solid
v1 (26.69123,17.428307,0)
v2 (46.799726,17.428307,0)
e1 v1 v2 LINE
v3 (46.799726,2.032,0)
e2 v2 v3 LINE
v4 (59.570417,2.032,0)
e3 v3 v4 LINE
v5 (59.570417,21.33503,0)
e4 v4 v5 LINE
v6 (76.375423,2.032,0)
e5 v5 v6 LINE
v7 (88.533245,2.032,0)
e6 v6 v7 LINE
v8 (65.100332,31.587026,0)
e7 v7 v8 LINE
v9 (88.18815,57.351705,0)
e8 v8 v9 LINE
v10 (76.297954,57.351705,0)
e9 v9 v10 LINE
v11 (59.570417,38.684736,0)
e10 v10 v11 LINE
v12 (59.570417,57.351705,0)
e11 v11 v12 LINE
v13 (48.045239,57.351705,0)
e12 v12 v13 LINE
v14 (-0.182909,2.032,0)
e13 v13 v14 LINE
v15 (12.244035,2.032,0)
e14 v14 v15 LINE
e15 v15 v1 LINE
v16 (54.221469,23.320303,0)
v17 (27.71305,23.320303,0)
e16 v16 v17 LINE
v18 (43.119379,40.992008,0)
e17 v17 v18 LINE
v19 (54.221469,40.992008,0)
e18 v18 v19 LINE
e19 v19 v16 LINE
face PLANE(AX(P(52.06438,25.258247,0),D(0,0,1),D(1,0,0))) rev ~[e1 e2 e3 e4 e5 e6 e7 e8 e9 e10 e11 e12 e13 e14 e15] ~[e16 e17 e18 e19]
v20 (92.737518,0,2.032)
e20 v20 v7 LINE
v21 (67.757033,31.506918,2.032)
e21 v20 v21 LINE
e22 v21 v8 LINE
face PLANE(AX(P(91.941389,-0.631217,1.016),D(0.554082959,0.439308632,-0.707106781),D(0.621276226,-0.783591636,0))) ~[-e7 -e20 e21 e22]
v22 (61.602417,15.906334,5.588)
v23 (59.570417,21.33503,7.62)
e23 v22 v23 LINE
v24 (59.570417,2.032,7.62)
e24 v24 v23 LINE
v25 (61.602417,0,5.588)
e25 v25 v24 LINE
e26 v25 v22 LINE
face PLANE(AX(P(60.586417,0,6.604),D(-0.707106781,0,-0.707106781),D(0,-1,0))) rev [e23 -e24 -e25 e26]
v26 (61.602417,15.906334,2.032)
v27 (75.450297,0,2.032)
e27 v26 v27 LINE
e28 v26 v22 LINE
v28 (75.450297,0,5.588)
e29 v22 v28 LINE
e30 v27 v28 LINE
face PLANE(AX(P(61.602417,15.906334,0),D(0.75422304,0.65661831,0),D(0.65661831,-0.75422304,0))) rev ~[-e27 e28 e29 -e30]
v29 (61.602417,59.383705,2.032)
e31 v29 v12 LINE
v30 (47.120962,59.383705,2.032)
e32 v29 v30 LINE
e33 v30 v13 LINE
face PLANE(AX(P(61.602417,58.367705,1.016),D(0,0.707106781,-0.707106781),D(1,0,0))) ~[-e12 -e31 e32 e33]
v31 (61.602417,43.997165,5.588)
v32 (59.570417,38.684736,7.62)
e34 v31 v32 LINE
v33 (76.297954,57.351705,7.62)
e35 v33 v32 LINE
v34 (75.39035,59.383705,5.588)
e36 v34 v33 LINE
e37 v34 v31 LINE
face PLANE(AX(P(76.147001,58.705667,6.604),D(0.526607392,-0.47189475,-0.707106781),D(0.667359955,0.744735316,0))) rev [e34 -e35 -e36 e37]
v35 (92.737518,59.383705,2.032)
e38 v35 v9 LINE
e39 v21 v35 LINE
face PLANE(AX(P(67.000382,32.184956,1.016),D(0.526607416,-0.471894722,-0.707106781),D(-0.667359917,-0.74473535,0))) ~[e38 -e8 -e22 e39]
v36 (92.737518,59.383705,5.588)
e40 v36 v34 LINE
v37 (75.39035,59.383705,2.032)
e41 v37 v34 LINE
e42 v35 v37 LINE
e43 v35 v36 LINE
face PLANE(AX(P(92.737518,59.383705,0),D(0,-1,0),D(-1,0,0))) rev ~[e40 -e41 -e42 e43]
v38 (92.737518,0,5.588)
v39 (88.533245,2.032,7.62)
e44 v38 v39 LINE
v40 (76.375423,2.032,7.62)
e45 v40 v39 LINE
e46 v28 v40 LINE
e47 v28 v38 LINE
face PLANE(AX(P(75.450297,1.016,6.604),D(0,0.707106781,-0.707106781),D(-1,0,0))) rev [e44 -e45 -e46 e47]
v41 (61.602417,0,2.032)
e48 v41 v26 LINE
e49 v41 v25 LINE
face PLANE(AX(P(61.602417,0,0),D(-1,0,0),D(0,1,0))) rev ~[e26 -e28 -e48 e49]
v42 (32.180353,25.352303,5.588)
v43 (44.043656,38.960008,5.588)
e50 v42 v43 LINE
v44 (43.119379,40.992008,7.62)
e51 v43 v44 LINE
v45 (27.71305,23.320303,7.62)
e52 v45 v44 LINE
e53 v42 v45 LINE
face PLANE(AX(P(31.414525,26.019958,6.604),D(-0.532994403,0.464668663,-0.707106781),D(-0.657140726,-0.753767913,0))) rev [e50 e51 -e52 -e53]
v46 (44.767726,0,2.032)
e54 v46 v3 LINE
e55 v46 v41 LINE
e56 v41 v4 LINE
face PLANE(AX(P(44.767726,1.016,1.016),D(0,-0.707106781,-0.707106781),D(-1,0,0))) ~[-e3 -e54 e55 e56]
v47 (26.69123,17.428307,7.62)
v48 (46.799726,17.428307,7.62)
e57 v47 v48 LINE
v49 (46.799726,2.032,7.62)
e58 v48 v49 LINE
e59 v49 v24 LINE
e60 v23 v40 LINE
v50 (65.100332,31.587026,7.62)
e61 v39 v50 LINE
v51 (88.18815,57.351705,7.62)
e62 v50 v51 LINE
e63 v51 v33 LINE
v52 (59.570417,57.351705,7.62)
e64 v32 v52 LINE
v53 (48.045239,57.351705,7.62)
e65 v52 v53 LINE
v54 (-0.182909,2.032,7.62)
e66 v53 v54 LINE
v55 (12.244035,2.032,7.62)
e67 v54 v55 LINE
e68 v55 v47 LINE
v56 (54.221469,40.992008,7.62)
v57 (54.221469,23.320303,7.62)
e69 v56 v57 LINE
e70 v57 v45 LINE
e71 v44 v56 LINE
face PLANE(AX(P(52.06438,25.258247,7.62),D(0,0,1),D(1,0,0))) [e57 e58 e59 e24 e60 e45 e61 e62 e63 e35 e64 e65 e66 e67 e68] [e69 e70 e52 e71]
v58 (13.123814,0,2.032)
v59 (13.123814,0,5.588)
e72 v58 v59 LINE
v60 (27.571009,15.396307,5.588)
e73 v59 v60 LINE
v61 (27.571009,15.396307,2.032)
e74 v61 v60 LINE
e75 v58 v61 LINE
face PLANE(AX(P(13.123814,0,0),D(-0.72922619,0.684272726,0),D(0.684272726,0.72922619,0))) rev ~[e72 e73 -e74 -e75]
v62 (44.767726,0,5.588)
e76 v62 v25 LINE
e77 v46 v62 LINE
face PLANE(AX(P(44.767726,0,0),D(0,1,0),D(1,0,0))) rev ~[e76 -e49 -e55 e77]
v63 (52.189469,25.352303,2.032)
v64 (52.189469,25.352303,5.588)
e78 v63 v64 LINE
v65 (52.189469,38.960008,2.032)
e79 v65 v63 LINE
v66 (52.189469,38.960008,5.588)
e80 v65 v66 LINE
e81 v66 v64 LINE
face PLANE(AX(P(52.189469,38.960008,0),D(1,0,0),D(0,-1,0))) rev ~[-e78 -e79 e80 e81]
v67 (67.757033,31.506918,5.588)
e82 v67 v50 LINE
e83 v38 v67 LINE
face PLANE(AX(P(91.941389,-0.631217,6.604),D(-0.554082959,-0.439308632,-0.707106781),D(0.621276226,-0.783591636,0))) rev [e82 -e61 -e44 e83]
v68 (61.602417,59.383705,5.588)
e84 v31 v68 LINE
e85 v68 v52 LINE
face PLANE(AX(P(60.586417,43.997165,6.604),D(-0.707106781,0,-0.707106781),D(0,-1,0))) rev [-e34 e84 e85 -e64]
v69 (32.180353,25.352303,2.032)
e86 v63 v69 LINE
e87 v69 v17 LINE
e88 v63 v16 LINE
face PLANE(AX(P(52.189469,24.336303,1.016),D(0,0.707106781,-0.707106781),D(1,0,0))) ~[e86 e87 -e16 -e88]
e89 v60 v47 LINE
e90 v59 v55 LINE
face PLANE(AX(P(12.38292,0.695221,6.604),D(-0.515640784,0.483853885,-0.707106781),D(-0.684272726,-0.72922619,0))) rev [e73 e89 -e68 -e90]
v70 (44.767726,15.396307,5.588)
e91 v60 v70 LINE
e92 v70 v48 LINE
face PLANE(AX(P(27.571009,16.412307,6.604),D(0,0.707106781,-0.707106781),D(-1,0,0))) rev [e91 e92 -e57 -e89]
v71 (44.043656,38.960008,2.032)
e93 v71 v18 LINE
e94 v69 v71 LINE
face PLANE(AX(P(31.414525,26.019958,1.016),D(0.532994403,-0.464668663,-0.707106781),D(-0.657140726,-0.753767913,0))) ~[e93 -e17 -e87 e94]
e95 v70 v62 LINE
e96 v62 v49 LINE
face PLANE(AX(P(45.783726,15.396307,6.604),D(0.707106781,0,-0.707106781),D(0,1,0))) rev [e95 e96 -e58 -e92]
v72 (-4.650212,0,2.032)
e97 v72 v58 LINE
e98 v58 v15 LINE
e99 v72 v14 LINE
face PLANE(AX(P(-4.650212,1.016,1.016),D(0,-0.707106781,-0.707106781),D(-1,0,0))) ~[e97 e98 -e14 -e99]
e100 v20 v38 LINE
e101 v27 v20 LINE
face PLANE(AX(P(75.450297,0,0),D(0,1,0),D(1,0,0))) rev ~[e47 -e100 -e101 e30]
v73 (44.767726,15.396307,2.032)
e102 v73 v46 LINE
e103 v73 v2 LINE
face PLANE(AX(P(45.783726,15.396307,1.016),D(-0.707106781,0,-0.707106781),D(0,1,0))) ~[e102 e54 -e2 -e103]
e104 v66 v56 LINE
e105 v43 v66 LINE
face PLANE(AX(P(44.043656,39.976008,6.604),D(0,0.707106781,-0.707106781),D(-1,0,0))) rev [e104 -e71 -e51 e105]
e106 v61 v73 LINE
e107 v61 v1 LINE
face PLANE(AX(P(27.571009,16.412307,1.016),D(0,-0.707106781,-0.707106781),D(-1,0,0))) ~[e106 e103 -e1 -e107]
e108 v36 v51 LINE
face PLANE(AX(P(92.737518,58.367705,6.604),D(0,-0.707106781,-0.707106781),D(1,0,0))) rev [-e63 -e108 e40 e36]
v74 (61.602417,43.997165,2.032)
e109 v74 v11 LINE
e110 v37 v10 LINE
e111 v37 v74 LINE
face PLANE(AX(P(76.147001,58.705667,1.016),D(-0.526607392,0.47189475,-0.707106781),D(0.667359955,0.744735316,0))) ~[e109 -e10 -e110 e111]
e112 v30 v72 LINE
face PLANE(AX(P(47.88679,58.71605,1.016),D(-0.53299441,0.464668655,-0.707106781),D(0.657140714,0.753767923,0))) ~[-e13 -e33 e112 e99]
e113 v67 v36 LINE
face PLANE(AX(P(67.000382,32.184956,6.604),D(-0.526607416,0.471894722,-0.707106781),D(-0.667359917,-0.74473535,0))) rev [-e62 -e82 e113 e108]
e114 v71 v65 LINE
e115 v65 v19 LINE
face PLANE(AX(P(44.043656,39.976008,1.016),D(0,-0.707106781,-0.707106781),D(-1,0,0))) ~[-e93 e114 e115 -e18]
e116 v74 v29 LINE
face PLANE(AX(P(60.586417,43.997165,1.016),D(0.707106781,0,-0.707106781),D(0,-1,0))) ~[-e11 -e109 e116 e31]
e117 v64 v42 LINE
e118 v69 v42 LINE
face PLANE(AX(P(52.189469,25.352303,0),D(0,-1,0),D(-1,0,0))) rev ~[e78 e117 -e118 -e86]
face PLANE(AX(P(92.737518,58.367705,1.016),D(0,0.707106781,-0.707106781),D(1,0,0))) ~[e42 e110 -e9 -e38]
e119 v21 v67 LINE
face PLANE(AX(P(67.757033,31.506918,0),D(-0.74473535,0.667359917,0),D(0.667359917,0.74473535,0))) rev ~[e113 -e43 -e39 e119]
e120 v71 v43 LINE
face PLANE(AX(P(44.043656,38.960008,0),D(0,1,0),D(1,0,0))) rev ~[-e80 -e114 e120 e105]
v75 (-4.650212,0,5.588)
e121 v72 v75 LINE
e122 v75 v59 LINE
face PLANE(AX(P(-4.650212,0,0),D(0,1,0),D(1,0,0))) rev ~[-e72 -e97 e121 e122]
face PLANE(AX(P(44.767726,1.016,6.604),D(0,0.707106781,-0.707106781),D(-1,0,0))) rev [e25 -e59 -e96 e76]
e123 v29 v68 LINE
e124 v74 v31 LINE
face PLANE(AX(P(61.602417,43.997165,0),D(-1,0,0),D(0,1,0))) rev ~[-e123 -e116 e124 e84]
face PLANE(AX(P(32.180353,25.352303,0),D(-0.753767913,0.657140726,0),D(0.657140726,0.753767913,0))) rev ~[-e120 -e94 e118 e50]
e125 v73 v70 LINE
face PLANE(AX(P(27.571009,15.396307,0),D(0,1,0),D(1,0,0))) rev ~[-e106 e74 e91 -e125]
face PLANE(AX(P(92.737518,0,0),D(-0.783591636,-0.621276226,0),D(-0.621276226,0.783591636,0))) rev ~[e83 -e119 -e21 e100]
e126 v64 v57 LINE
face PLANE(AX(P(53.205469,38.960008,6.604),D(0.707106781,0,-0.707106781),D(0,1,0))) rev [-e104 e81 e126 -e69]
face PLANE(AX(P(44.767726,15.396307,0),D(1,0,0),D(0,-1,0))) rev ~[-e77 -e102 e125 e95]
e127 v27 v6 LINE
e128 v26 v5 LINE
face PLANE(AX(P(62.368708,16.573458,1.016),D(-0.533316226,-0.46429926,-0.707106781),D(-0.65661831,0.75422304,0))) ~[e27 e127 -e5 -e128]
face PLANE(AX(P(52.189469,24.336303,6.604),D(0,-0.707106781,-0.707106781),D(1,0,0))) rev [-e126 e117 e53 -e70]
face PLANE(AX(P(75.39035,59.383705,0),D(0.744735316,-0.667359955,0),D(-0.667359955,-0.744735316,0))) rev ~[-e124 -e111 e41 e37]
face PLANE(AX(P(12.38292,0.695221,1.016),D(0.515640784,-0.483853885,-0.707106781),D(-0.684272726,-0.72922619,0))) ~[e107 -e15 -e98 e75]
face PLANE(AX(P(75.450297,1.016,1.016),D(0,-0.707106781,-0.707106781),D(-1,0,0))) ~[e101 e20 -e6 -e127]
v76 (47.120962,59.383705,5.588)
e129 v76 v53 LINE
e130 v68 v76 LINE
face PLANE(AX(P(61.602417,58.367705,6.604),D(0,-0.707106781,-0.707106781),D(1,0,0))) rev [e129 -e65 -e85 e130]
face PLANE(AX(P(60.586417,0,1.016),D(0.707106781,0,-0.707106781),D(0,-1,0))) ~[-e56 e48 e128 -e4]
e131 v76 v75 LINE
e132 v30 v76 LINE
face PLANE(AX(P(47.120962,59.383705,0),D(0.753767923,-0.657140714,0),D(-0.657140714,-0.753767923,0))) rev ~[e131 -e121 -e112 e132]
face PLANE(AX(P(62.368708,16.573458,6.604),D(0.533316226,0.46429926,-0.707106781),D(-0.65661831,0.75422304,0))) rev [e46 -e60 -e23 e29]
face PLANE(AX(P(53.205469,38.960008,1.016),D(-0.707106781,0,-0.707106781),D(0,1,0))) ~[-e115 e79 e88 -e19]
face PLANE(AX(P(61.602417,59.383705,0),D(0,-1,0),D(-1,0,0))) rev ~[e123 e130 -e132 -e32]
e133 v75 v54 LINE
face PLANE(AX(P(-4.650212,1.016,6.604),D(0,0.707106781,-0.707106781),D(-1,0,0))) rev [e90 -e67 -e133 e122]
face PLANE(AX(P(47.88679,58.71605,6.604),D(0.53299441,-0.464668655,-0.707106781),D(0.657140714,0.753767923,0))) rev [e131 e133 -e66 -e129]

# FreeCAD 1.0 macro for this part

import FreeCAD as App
import Part
import Sketcher
Q = App.Units.Quantity


def edges_at(feature, points):
    """Names of the edges that pass closest to the given points."""
    edges = feature.Shape.Edges
    near = lambda p: min(range(len(edges)), key=lambda i: edges[i].distToShape(Part.Vertex(*p))[0])
    return sorted({f"Edge{near(p) + 1}" for p in points})

doc = App.newDocument("Part")
body = doc.addObject("PartDesign::Body", "Body")

# Sketch on XY plane
sketch1 = body.newObject("Sketcher::SketchObject", "Sketch")
sketch1.AttachmentSupport = (doc.getObject("XY_Plane"), [""])
sketch1.MapMode = "FlatFace"
sketch1.addGeometry(Part.LineSegment(App.Vector(-4.650212, 0, 0), App.Vector(13.123814, 0, 0)), False)
sketch1.addGeometry(Part.LineSegment(App.Vector(13.123814, 0, 0), App.Vector(27.571009, 15.396307, 0)), False)
sketch1.addGeometry(Part.LineSegment(App.Vector(27.571009, 15.396307, 0), App.Vector(44.767726, 15.396307, 0)), False)
sketch1.addGeometry(Part.LineSegment(App.Vector(44.767726, 15.396307, 0), App.Vector(44.767726, 0, 0)), False)
sketch1.addGeometry(Part.LineSegment(App.Vector(44.767726, 0, 0), App.Vector(61.602417, 0, 0)), False)
sketch1.addGeometry(Part.LineSegment(App.Vector(61.602417, 0, 0), App.Vector(61.602417, 15.906334, 0)), False)
sketch1.addGeometry(Part.LineSegment(App.Vector(61.602417, 15.906334, 0), App.Vector(75.450297, 0, 0)), False)
sketch1.addGeometry(Part.LineSegment(App.Vector(75.450297, 0, 0), App.Vector(92.737518, 0, 0)), False)
sketch1.addGeometry(Part.LineSegment(App.Vector(92.737518, 0, 0), App.Vector(67.757033, 31.506918, 0)), False)
sketch1.addGeometry(Part.LineSegment(App.Vector(67.757033, 31.506918, 0), App.Vector(92.737518, 59.383705, 0)), False)
sketch1.addGeometry(Part.LineSegment(App.Vector(92.737518, 59.383705, 0), App.Vector(75.39035, 59.383705, 0)), False)
sketch1.addGeometry(Part.LineSegment(App.Vector(75.39035, 59.383705, 0), App.Vector(61.602417, 43.997165, 0)), False)
sketch1.addGeometry(Part.LineSegment(App.Vector(61.602417, 43.997165, 0), App.Vector(61.602417, 59.383705, 0)), False)
sketch1.addGeometry(Part.LineSegment(App.Vector(61.602417, 59.383705, 0), App.Vector(47.120962, 59.383705, 0)), False)
sketch1.addGeometry(Part.LineSegment(App.Vector(47.120962, 59.383705, 0), App.Vector(-4.650212, 0, 0)), False)
sketch1.addGeometry(Part.LineSegment(App.Vector(32.180353, 25.352303, 0), App.Vector(44.043656, 38.960008, 0)), False)
sketch1.addGeometry(Part.LineSegment(App.Vector(44.043656, 38.960008, 0), App.Vector(52.189469, 38.960008, 0)), False)
sketch1.addGeometry(Part.LineSegment(App.Vector(52.189469, 38.960008, 0), App.Vector(52.189469, 25.352303, 0)), False)
sketch1.addGeometry(Part.LineSegment(App.Vector(52.189469, 25.352303, 0), App.Vector(32.180353, 25.352303, 0)), False)
sketch1.addConstraint(Sketcher.Constraint("Coincident", 0, 2, 1, 1))
sketch1.addConstraint(Sketcher.Constraint("Coincident", 1, 2, 2, 1))
sketch1.addConstraint(Sketcher.Constraint("Coincident", 2, 2, 3, 1))
sketch1.addConstraint(Sketcher.Constraint("Coincident", 3, 2, 4, 1))
sketch1.addConstraint(Sketcher.Constraint("Coincident", 4, 2, 5, 1))
sketch1.addConstraint(Sketcher.Constraint("Coincident", 5, 2, 6, 1))
sketch1.addConstraint(Sketcher.Constraint("Coincident", 6, 2, 7, 1))
sketch1.addConstraint(Sketcher.Constraint("Coincident", 7, 2, 8, 1))
sketch1.addConstraint(Sketcher.Constraint("Coincident", 8, 2, 9, 1))
sketch1.addConstraint(Sketcher.Constraint("Coincident", 9, 2, 10, 1))
sketch1.addConstraint(Sketcher.Constraint("Coincident", 10, 2, 11, 1))
sketch1.addConstraint(Sketcher.Constraint("Coincident", 11, 2, 12, 1))
sketch1.addConstraint(Sketcher.Constraint("Coincident", 12, 2, 13, 1))
sketch1.addConstraint(Sketcher.Constraint("Coincident", 13, 2, 14, 1))
sketch1.addConstraint(Sketcher.Constraint("Coincident", 14, 2, 0, 1))
sketch1.addConstraint(Sketcher.Constraint("Coincident", 15, 2, 16, 1))
sketch1.addConstraint(Sketcher.Constraint("Coincident", 16, 2, 17, 1))
sketch1.addConstraint(Sketcher.Constraint("Coincident", 17, 2, 18, 1))
sketch1.addConstraint(Sketcher.Constraint("Coincident", 18, 2, 15, 1))
sketch1.addConstraint(Sketcher.Constraint("Horizontal", 0))
sketch1.addConstraint(Sketcher.Constraint("Horizontal", 2))
sketch1.addConstraint(Sketcher.Constraint("Vertical", 3))
sketch1.addConstraint(Sketcher.Constraint("Horizontal", 4))
sketch1.addConstraint(Sketcher.Constraint("Vertical", 5))
sketch1.addConstraint(Sketcher.Constraint("Horizontal", 7))
sketch1.addConstraint(Sketcher.Constraint("Horizontal", 10))
sketch1.addConstraint(Sketcher.Constraint("Vertical", 12))
sketch1.addConstraint(Sketcher.Constraint("Horizontal", 13))
sketch1.addConstraint(Sketcher.Constraint("Horizontal", 16))
sketch1.addConstraint(Sketcher.Constraint("Vertical", 17))
sketch1.addConstraint(Sketcher.Constraint("Horizontal", 18))
sketch1.addConstraint(Sketcher.Constraint("PointOnObject", 0, 2, -1))
sketch1.addConstraint(Sketcher.Constraint("PointOnObject", 3, 2, -1))
sketch1.addConstraint(Sketcher.Constraint("PointOnObject", 6, 2, -1))
sketch1.addConstraint(Sketcher.Constraint("Parallel", 9, 11))
sketch1.addConstraint(Sketcher.Constraint("Parallel", 14, 15))
sketch1.addConstraint(Sketcher.Constraint("Horizontal", 10, 2, 12, 2))
sketch1.addConstraint(Sketcher.Constraint("Vertical", 7, 2, 9, 2))
sketch1.addConstraint(Sketcher.Constraint("Vertical", 5, 2, 11, 2))
sketch1.addConstraint(Sketcher.Constraint("DistanceX", 4, 1, 4, 2, 16.834691))
sketch1.addConstraint(Sketcher.Constraint("DistanceX", 7, 1, 7, 2, 17.287221))
sketch1.addConstraint(Sketcher.Constraint("DistanceY", 12, 1, 12, 2, 15.38654))
sketch1.addConstraint(Sketcher.Constraint("DistanceX", 4, 2, 7, 2, 31.135101))
sketch1.addConstraint(Sketcher.Constraint("DistanceY", 2, 2, 15, 2, 23.563701))
sketch1.addConstraint(Sketcher.Constraint("Distance", 1, 21.113212))
sketch1.addConstraint(Sketcher.Constraint("Distance", 8, 40.208339))
sketch1.addConstraint(Sketcher.Constraint("Distance", 14, 78.782478))
sketch1.addConstraint(Sketcher.Constraint("Distance", 15, 18.052911))
sketch1.addConstraint(Sketcher.Constraint("DistanceX", 0, 1, 0, 2, 17.774026))
sketch1.addConstraint(Sketcher.Constraint("DistanceX", 2, 1, 2, 2, 17.196717))
sketch1.addConstraint(Sketcher.Constraint("DistanceX", 10, 2, 10, 1, 17.347168))
sketch1.addConstraint(Sketcher.Constraint("DistanceX", 13, 2, 13, 1, 14.481455))
sketch1.addConstraint(Sketcher.Constraint("DistanceX", 16, 1, 16, 2, 8.145813))
sketch1.addConstraint(Sketcher.Constraint("DistanceX", 18, 2, 18, 1, 20.009116))
sketch1.addConstraint(Sketcher.Constraint("DistanceY", 5, 1, 5, 2, 15.906334))
sketch1.addConstraint(Sketcher.Constraint("DistanceX", -1, 1, 1, 2, 27.571009))
sketch1.addConstraint(Sketcher.Constraint("DistanceX", -1, 1, 16, 2, 52.189469))
pad1 = body.newObject("PartDesign::Pad", "Pad")
pad1.Profile = sketch1
pad1.Length = Q("0.3 in")
doc.recompute()

chamfer = body.newObject("PartDesign::Chamfer", "Chamfer")
chamfer.Base = (pad1, edges_at(pad1, [
    (21.235, 29.692, 7.62),
    (4.237, 0, 7.62),
    (20.347, 7.698, 7.62),
    (36.169, 15.396, 7.62),
    (44.768, 7.698, 7.62),
    (53.185, 0, 7.62),
    (61.602, 7.953, 7.62),
    (68.526, 7.953, 7.62),
    (84.094, 0, 7.62),
    (80.247, 15.753, 7.62),
    (80.247, 45.445, 7.62),
    (84.064, 59.384, 7.62),
    (68.496, 51.69, 7.62),
    (61.602, 51.69, 7.62),
    (54.362, 59.384, 7.62),
    (38.112, 32.156, 7.62),
    (48.117, 38.96, 7.62),
    (52.189, 32.156, 7.62),
    (42.185, 25.352, 7.62),
    (21.235, 29.692, 0),
    (4.237, 0, 0),
    (20.347, 7.698, 0),
    (36.169, 15.396, 0),
    (44.768, 7.698, 0),
    (53.185, 0, 0),
    (61.602, 7.953, 0),
    (68.526, 7.953, 0),
    (84.094, 0, 0),
    (80.247, 15.753, 0),
    (80.247, 45.445, 0),
    (84.064, 59.384, 0),
    (68.496, 51.69, 0),
    (61.602, 51.69, 0),
    (54.362, 59.384, 0),
    (38.112, 32.156, 0),
    (48.117, 38.96, 0),
    (52.189, 32.156, 0),
    (42.185, 25.352, 0),
]))
chamfer.Size = Q("0.08 in")

doc.recompute()
